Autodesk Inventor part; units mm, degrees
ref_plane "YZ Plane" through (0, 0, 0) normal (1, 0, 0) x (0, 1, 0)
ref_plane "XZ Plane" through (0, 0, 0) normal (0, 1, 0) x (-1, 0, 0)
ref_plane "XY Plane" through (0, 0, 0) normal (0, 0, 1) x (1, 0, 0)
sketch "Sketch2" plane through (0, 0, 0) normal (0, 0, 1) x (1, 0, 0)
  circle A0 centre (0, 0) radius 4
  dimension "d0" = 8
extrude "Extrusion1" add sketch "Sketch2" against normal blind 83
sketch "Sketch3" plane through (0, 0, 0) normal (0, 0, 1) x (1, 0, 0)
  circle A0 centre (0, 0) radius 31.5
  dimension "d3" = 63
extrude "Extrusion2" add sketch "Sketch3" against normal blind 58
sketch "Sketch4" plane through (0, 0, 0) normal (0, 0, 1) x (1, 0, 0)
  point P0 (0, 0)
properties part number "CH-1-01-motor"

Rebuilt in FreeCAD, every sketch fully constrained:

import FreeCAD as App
import Part
import Sketcher
from FreeCAD import Vector

doc = App.newDocument("Part")
body = doc.addObject("PartDesign::Body", "Body")

# Sketch on XY plane
sketch1 = body.newObject("Sketcher::SketchObject", "Sketch")
sketch1.AttachmentSupport = (doc.getObject("XY_Plane"), [""])
sketch1.MapMode = "FlatFace"
sketch1.addGeometry(Part.Circle(Vector(0, 0, 0), Vector(0, 0, 1), 4), False)
sketch1.addConstraint([
    Sketcher.Constraint("Coincident", 0, 3, -1, 1),
    Sketcher.Constraint("Diameter", 0, 8.0),
])
pad1 = body.newObject("PartDesign::Pad", "Pad")
pad1.Profile = sketch1
pad1.Length = 83
pad1.Reversed = True

# Sketch on XY plane
sketch2 = body.newObject("Sketcher::SketchObject", "Sketch001")
sketch2.AttachmentSupport = (doc.getObject("XY_Plane"), [""])
sketch2.MapMode = "FlatFace"
sketch2.addGeometry(Part.Circle(Vector(0, 0, 0), Vector(0, 0, 1), 32), False)
sketch2.addConstraint([
    Sketcher.Constraint("Coincident", 0, 3, -1, 1),
    Sketcher.Constraint("Diameter", 0, 63.0),
])
pad2 = body.newObject("PartDesign::Pad", "Pad001")
pad2.Profile = sketch2
pad2.Length = 58
pad2.Reversed = True

doc.recompute()
